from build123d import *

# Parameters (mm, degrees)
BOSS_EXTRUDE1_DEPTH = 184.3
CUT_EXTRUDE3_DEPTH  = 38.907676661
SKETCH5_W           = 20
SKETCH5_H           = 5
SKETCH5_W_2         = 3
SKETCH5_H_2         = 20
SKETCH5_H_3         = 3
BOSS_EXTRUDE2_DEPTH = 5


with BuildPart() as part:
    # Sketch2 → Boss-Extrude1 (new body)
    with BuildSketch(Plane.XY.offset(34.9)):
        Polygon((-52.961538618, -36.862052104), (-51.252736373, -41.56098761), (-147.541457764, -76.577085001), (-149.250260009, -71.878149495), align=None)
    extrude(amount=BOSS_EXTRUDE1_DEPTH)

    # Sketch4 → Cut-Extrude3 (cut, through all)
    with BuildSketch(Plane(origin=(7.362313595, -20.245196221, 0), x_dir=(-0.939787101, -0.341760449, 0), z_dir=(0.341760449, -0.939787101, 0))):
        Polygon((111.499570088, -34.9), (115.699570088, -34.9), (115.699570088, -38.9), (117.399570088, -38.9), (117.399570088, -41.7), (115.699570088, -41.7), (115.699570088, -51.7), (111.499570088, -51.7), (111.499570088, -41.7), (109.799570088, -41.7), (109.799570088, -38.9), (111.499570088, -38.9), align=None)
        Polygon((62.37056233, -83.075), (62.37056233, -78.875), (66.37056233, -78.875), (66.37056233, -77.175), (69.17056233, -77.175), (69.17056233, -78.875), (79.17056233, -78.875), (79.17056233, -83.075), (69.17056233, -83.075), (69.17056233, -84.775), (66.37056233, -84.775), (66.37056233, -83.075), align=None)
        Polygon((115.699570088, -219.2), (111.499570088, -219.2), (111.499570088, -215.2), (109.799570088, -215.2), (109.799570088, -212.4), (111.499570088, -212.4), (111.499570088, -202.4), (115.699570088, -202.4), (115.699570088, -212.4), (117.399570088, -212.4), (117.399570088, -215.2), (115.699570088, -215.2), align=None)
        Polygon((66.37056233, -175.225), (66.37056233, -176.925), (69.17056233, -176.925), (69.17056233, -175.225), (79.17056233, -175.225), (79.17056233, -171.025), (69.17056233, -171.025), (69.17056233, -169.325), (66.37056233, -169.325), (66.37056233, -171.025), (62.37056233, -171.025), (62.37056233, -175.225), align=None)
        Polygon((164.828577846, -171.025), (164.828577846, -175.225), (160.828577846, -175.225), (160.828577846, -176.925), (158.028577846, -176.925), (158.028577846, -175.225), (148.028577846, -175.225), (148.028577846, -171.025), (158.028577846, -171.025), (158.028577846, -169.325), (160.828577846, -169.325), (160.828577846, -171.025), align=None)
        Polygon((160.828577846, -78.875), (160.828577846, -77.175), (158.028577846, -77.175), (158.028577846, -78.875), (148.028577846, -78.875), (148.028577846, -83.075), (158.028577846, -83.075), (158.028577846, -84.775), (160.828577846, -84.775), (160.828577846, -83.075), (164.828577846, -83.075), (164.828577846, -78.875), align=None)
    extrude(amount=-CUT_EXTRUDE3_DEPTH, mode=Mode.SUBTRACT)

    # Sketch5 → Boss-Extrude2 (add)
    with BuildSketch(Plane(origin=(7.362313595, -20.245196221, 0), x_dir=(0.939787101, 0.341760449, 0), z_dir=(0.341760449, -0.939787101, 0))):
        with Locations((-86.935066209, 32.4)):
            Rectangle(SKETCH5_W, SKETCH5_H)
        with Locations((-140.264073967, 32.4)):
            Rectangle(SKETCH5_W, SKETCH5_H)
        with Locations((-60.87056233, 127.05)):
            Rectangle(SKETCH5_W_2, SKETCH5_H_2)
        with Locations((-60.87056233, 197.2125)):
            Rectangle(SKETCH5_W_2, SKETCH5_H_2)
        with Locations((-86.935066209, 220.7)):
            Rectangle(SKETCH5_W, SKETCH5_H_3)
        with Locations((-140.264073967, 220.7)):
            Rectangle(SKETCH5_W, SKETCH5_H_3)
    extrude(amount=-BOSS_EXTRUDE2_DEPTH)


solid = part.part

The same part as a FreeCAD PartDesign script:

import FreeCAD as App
import Part
import Sketcher

V = App.Vector


def add_polygon(sketch, points):
    """Adds a closed chain of lines whose ends are joined by coincident constraints."""
    first, n = sketch.GeometryCount, len(points)
    for a, b in zip(points, points[1:] + points[:1]):
        sketch.addGeometry(Part.LineSegment(App.Vector(*a, 0), App.Vector(*b, 0)), False)
    for i in range(n):
        sketch.addConstraint(Sketcher.Constraint("Coincident", first + i, 2, first + (i + 1) % n, 1))

doc = App.newDocument("Part")
params = doc.addObject("Spreadsheet::Sheet", "Params")
for row, (alias, value) in enumerate([
    ("sketch1_length", "5 mm"),
    ("pad1_length", "184.3 mm"),
    ("sketch2_width", "4 mm"),
    ("sketch2_width2", "10 mm"),
    ("sketch2_width3", "4.2 mm"),
    ("sketch2_width4", "1.7 mm"),
    ("sketch2_width5", "2.8 mm"),
    ("sketch3_width", "20 mm"),
    ("sketch3_width2", "3 mm"),
    ("sketch3_height", "5 mm"),
    ("pad2_length", "5 mm"),
], start=1):
    params.set(f"A{row}", alias)
    params.set(f"B{row}", "=" + value)
    params.setAlias(f"B{row}", alias)

body = doc.addObject("PartDesign::Body", "Body")

sketch1 = body.newObject("Sketcher::SketchObject", "Sketch")
sketch1.AttachmentSupport = (doc.getObject("XY_Plane"), [""])
sketch1.MapMode = "FlatFace"
sketch1.AttachmentOffset = App.Placement(V(0, 0, 34.9), App.Rotation())
add_polygon(sketch1, [(-51.252736, -41.560988), (-52.961539, -36.862052), (-149.25026, -71.878149), (-147.541458, -76.577085)])
sketch1.addConstraint(Sketcher.Constraint("Perpendicular", 0, 1))
sketch1.addConstraint(Sketcher.Constraint("Perpendicular", 1, 2))
sketch1.addConstraint(Sketcher.Constraint("Perpendicular", 2, 3))
sketch1.addConstraint(Sketcher.Constraint("Distance", 0, 5.0))
sketch1.addConstraint(Sketcher.Constraint("DistanceX", 0, 2, -1, 1, 52.961539))
sketch1.addConstraint(Sketcher.Constraint("DistanceX", 1, 2, -1, 1, 149.25026))
sketch1.addConstraint(Sketcher.Constraint("DistanceY", 1, 2, -1, 1, 71.878149))
sketch1.addConstraint(Sketcher.Constraint("DistanceX", 2, 2, 0, 2, 94.579919))
sketch1.setExpression("Constraints[7]", "Params.sketch1_length")
pad1 = body.newObject("PartDesign::Pad", "Pad")
pad1.Profile = sketch1
pad1.setExpression("Length", "Params.pad1_length")

sketch2 = body.newObject("Sketcher::SketchObject", "Sketch001")
sketch2.Placement = App.Placement(V(7.362314, -20.245196, 0), App.Rotation(V(-0.939787101, -0.341760449, 0), V(0, 0, -1), V(0.341760449, -0.939787101, 0), "ZXY"))
add_polygon(sketch2, [(115.69957, -34.9), (111.49957, -34.9), (111.49957, -38.9), (109.79957, -38.9), (109.79957, -41.7), (111.49957, -41.7), (111.49957, -51.7), (115.69957, -51.7), (115.69957, -41.7), (117.39957, -41.7), (117.39957, -38.9), (115.69957, -38.9)])
add_polygon(sketch2, [(62.370562, -78.875), (62.370562, -83.075), (66.370562, -83.075), (66.370562, -84.775), (69.170562, -84.775), (69.170562, -83.075), (79.170562, -83.075), (79.170562, -78.875), (69.170562, -78.875), (69.170562, -77.175), (66.370562, -77.175), (66.370562, -78.875)])
add_polygon(sketch2, [(111.49957, -219.2), (115.69957, -219.2), (115.69957, -215.2), (117.39957, -215.2), (117.39957, -212.4), (115.69957, -212.4), (115.69957, -202.4), (111.49957, -202.4), (111.49957, -212.4), (109.79957, -212.4), (109.79957, -215.2), (111.49957, -215.2)])
add_polygon(sketch2, [(66.370562, -175.225), (66.370562, -176.925), (69.170562, -176.925), (69.170562, -175.225), (79.170562, -175.225), (79.170562, -171.025), (69.170562, -171.025), (69.170562, -169.325), (66.370562, -169.325), (66.370562, -171.025), (62.370562, -171.025), (62.370562, -175.225)])
add_polygon(sketch2, [(164.828578, -175.225), (164.828578, -171.025), (160.828578, -171.025), (160.828578, -169.325), (158.028578, -169.325), (158.028578, -171.025), (148.028578, -171.025), (148.028578, -175.225), (158.028578, -175.225), (158.028578, -176.925), (160.828578, -176.925), (160.828578, -175.225)])
add_polygon(sketch2, [(160.828578, -78.875), (160.828578, -77.175), (158.028578, -77.175), (158.028578, -78.875), (148.028578, -78.875), (148.028578, -83.075), (158.028578, -83.075), (158.028578, -84.775), (160.828578, -84.775), (160.828578, -83.075), (164.828578, -83.075), (164.828578, -78.875)])
sketch2.addConstraint(Sketcher.Constraint("Horizontal", 0))
sketch2.addConstraint(Sketcher.Constraint("Vertical", 1))
sketch2.addConstraint(Sketcher.Constraint("Horizontal", 2))
sketch2.addConstraint(Sketcher.Constraint("Vertical", 3))
sketch2.addConstraint(Sketcher.Constraint("Horizontal", 4))
sketch2.addConstraint(Sketcher.Constraint("Vertical", 5))
sketch2.addConstraint(Sketcher.Constraint("Horizontal", 6))
sketch2.addConstraint(Sketcher.Constraint("Vertical", 7))
sketch2.addConstraint(Sketcher.Constraint("Horizontal", 8))
sketch2.addConstraint(Sketcher.Constraint("Vertical", 9))
sketch2.addConstraint(Sketcher.Constraint("Horizontal", 10))
sketch2.addConstraint(Sketcher.Constraint("Vertical", 11))
sketch2.addConstraint(Sketcher.Constraint("Vertical", 12))
sketch2.addConstraint(Sketcher.Constraint("Horizontal", 13))
sketch2.addConstraint(Sketcher.Constraint("Vertical", 14))
sketch2.addConstraint(Sketcher.Constraint("Horizontal", 15))
sketch2.addConstraint(Sketcher.Constraint("Vertical", 16))
sketch2.addConstraint(Sketcher.Constraint("Horizontal", 17))
sketch2.addConstraint(Sketcher.Constraint("Vertical", 18))
sketch2.addConstraint(Sketcher.Constraint("Horizontal", 19))
sketch2.addConstraint(Sketcher.Constraint("Vertical", 20))
sketch2.addConstraint(Sketcher.Constraint("Horizontal", 21))
sketch2.addConstraint(Sketcher.Constraint("Vertical", 22))
sketch2.addConstraint(Sketcher.Constraint("Horizontal", 23))
sketch2.addConstraint(Sketcher.Constraint("Horizontal", 24))
sketch2.addConstraint(Sketcher.Constraint("Vertical", 25))
sketch2.addConstraint(Sketcher.Constraint("Horizontal", 26))
sketch2.addConstraint(Sketcher.Constraint("Vertical", 27))
sketch2.addConstraint(Sketcher.Constraint("Horizontal", 28))
sketch2.addConstraint(Sketcher.Constraint("Vertical", 29))
sketch2.addConstraint(Sketcher.Constraint("Horizontal", 30))
sketch2.addConstraint(Sketcher.Constraint("Vertical", 31))
sketch2.addConstraint(Sketcher.Constraint("Horizontal", 32))
sketch2.addConstraint(Sketcher.Constraint("Vertical", 33))
sketch2.addConstraint(Sketcher.Constraint("Horizontal", 34))
sketch2.addConstraint(Sketcher.Constraint("Vertical", 35))
sketch2.addConstraint(Sketcher.Constraint("Vertical", 36))
sketch2.addConstraint(Sketcher.Constraint("Horizontal", 37))
sketch2.addConstraint(Sketcher.Constraint("Vertical", 38))
sketch2.addConstraint(Sketcher.Constraint("Horizontal", 39))
sketch2.addConstraint(Sketcher.Constraint("Vertical", 40))
sketch2.addConstraint(Sketcher.Constraint("Horizontal", 41))
sketch2.addConstraint(Sketcher.Constraint("Vertical", 42))
sketch2.addConstraint(Sketcher.Constraint("Horizontal", 43))
sketch2.addConstraint(Sketcher.Constraint("Vertical", 44))
sketch2.addConstraint(Sketcher.Constraint("Horizontal", 45))
sketch2.addConstraint(Sketcher.Constraint("Vertical", 46))
sketch2.addConstraint(Sketcher.Constraint("Horizontal", 47))
sketch2.addConstraint(Sketcher.Constraint("Vertical", 48))
sketch2.addConstraint(Sketcher.Constraint("Horizontal", 49))
sketch2.addConstraint(Sketcher.Constraint("Vertical", 50))
sketch2.addConstraint(Sketcher.Constraint("Horizontal", 51))
sketch2.addConstraint(Sketcher.Constraint("Vertical", 52))
sketch2.addConstraint(Sketcher.Constraint("Horizontal", 53))
sketch2.addConstraint(Sketcher.Constraint("Vertical", 54))
sketch2.addConstraint(Sketcher.Constraint("Horizontal", 55))
sketch2.addConstraint(Sketcher.Constraint("Vertical", 56))
sketch2.addConstraint(Sketcher.Constraint("Horizontal", 57))
sketch2.addConstraint(Sketcher.Constraint("Vertical", 58))
sketch2.addConstraint(Sketcher.Constraint("Horizontal", 59))
sketch2.addConstraint(Sketcher.Constraint("Vertical", 60))
sketch2.addConstraint(Sketcher.Constraint("Horizontal", 61))
sketch2.addConstraint(Sketcher.Constraint("Vertical", 62))
sketch2.addConstraint(Sketcher.Constraint("Horizontal", 63))
sketch2.addConstraint(Sketcher.Constraint("Vertical", 64))
sketch2.addConstraint(Sketcher.Constraint("Horizontal", 65))
sketch2.addConstraint(Sketcher.Constraint("Vertical", 66))
sketch2.addConstraint(Sketcher.Constraint("Horizontal", 67))
sketch2.addConstraint(Sketcher.Constraint("Vertical", 68))
sketch2.addConstraint(Sketcher.Constraint("Horizontal", 69))
sketch2.addConstraint(Sketcher.Constraint("Vertical", 70))
sketch2.addConstraint(Sketcher.Constraint("Horizontal", 71))
sketch2.addConstraint(Sketcher.Constraint("Horizontal", 4, 2, 7, 2))
sketch2.addConstraint(Sketcher.Constraint("Horizontal", 2, 2, 9, 2))
sketch2.addConstraint(Sketcher.Constraint("Horizontal", 13, 2, 16, 2))
sketch2.addConstraint(Sketcher.Constraint("Horizontal", 19, 2, 22, 2))
sketch2.addConstraint(Sketcher.Constraint("Horizontal", 28, 2, 31, 2))
sketch2.addConstraint(Sketcher.Constraint("Horizontal", 26, 2, 33, 2))
sketch2.addConstraint(Sketcher.Constraint("Horizontal", 41, 2, 44, 2))
sketch2.addConstraint(Sketcher.Constraint("Horizontal", 39, 2, 46, 2))
sketch2.addConstraint(Sketcher.Constraint("Horizontal", 45, 2, 48, 2))
sketch2.addConstraint(Sketcher.Constraint("Horizontal", 43, 2, 50, 2))
sketch2.addConstraint(Sketcher.Constraint("Horizontal", 49, 2, 52, 2))
sketch2.addConstraint(Sketcher.Constraint("Horizontal", 47, 2, 54, 2))
sketch2.addConstraint(Sketcher.Constraint("Horizontal", 37, 2, 56, 2))
sketch2.addConstraint(Sketcher.Constraint("Horizontal", 55, 2, 58, 2))
sketch2.addConstraint(Sketcher.Constraint("Horizontal", 21, 2, 60, 2))
sketch2.addConstraint(Sketcher.Constraint("Horizontal", 23, 2, 62, 2))
sketch2.addConstraint(Sketcher.Constraint("Horizontal", 17, 2, 64, 2))
sketch2.addConstraint(Sketcher.Constraint("Horizontal", 15, 2, 66, 2))
sketch2.addConstraint(Sketcher.Constraint("Horizontal", 65, 2, 68, 2))
sketch2.addConstraint(Sketcher.Constraint("Horizontal", 63, 2, 70, 2))
sketch2.addConstraint(Sketcher.Constraint("Vertical", 1, 2, 4, 2))
sketch2.addConstraint(Sketcher.Constraint("Vertical", 7, 2, 10, 2))
sketch2.addConstraint(Sketcher.Constraint("Vertical", 16, 2, 19, 2))
sketch2.addConstraint(Sketcher.Constraint("Vertical", 14, 2, 21, 2))
sketch2.addConstraint(Sketcher.Constraint("Vertical", 11, 2, 24, 2))
sketch2.addConstraint(Sketcher.Constraint("Vertical", 9, 2, 26, 2))
sketch2.addConstraint(Sketcher.Constraint("Vertical", 25, 2, 28, 2))
sketch2.addConstraint(Sketcher.Constraint("Vertical", 5, 2, 30, 2))
sketch2.addConstraint(Sketcher.Constraint("Vertical", 3, 2, 32, 2))
sketch2.addConstraint(Sketcher.Constraint("Vertical", 31, 2, 34, 2))
sketch2.addConstraint(Sketcher.Constraint("Vertical", 22, 2, 36, 2))
sketch2.addConstraint(Sketcher.Constraint("Vertical", 20, 2, 37, 2))
sketch2.addConstraint(Sketcher.Constraint("Vertical", 18, 2, 39, 2))
sketch2.addConstraint(Sketcher.Constraint("Vertical", 38, 2, 41, 2))
sketch2.addConstraint(Sketcher.Constraint("Vertical", 36, 2, 43, 2))
sketch2.addConstraint(Sketcher.Constraint("Vertical", 23, 2, 45, 2))
sketch2.addConstraint(Sketcher.Constraint("Vertical", 52, 2, 55, 2))
sketch2.addConstraint(Sketcher.Constraint("Vertical", 50, 2, 57, 2))
sketch2.addConstraint(Sketcher.Constraint("Vertical", 58, 2, 60, 2))
sketch2.addConstraint(Sketcher.Constraint("Vertical", 56, 2, 61, 2))
sketch2.addConstraint(Sketcher.Constraint("Vertical", 54, 2, 63, 2))
sketch2.addConstraint(Sketcher.Constraint("Vertical", 62, 2, 65, 2))
sketch2.addConstraint(Sketcher.Constraint("Vertical", 60, 2, 67, 2))
sketch2.addConstraint(Sketcher.Constraint("Vertical", 59, 2, 69, 2))
sketch2.addConstraint(Sketcher.Constraint("Equal", 4, 8))
sketch2.addConstraint(Sketcher.Constraint("Equal", 47, 49))
sketch2.addConstraint(Sketcher.Constraint("Equal", 43, 51))
sketch2.addConstraint(Sketcher.Constraint("Equal", 41, 53))
sketch2.addConstraint(Sketcher.Constraint("Equal", 71, 1))
sketch2.addConstraint(Sketcher.Constraint("Equal", 67, 3))
sketch2.addConstraint(Sketcher.Constraint("Equal", 65, 5))
sketch2.addConstraint(Sketcher.Constraint("Equal", 30, 12))
sketch2.addConstraint(Sketcher.Constraint("Equal", 34, 14))
sketch2.addConstraint(Sketcher.Constraint("Equal", 16, 20))
sketch2.addConstraint(Sketcher.Constraint("Equal", 11, 25))
sketch2.addConstraint(Sketcher.Constraint("Equal", 9, 27))
sketch2.addConstraint(Sketcher.Constraint("Equal", 7, 29))
sketch2.addConstraint(Sketcher.Constraint("Equal", 22, 36))
sketch2.addConstraint(Sketcher.Constraint("Equal", 18, 40))
sketch2.addConstraint(Sketcher.Constraint("Equal", 38, 42))
sketch2.addConstraint(Sketcher.Constraint("DistanceX", 13, 1, 13, 2, 4.0))
sketch2.addConstraint(Sketcher.Constraint("DistanceX", 17, 1, 17, 2, 10.0))
sketch2.addConstraint(Sketcher.Constraint("DistanceX", 0, 2, 0, 1, 4.2))
sketch2.addConstraint(Sketcher.Constraint("DistanceX", 2, 2, 2, 1, 1.7))
sketch2.addConstraint(Sketcher.Constraint("DistanceX", 15, 1, 15, 2, 2.8))
sketch2.addConstraint(Sketcher.Constraint("DistanceY", 0, 2, -1, 1, 34.9))
sketch2.addConstraint(Sketcher.Constraint("DistanceY", 24, 2, -1, 1, 219.2))
sketch2.addConstraint(Sketcher.Constraint("DistanceY", 12, 2, -1, 1, 83.075))
sketch2.addConstraint(Sketcher.Constraint("DistanceY", 36, 2, -1, 1, 176.925))
sketch2.addConstraint(Sketcher.Constraint("DistanceX", -1, 1, 0, 2, 111.49957))
sketch2.addConstraint(Sketcher.Constraint("DistanceX", -1, 1, 12, 2, 62.370562))
sketch2.addConstraint(Sketcher.Constraint("DistanceX", -1, 1, 48, 2, 164.828578))
sketch2.setExpression("Constraints[204]", "Params.sketch2_width")
sketch2.setExpression("Constraints[205]", "Params.sketch2_width2")
sketch2.setExpression("Constraints[206]", "Params.sketch2_width3")
sketch2.setExpression("Constraints[207]", "Params.sketch2_width4")
sketch2.setExpression("Constraints[208]", "Params.sketch2_width5")
pocket1 = body.newObject("PartDesign::Pocket", "Pocket")
pocket1.Profile = sketch2
pocket1.Type = "ThroughAll"

sketch3 = body.newObject("Sketcher::SketchObject", "Sketch002")
sketch3.Placement = App.Placement(V(7.362314, -20.245196, 0), App.Rotation(V(0.939787101, 0.341760449, 0), V(0, 0, 1), V(0.341760449, -0.939787101, 0), "ZXY"))
add_polygon(sketch3, [(-96.935066, 34.9), (-96.935066, 29.9), (-76.935066, 29.9), (-76.935066, 34.9)])
add_polygon(sketch3, [(-150.264074, 34.9), (-150.264074, 29.9), (-130.264074, 29.9), (-130.264074, 34.9)])
add_polygon(sketch3, [(-62.370562, 137.05), (-62.370562, 117.05), (-59.370562, 117.05), (-59.370562, 137.05)])
add_polygon(sketch3, [(-62.370562, 207.2125), (-62.370562, 187.2125), (-59.370562, 187.2125), (-59.370562, 207.2125)])
add_polygon(sketch3, [(-96.935066, 222.2), (-96.935066, 219.2), (-76.935066, 219.2), (-76.935066, 222.2)])
add_polygon(sketch3, [(-150.264074, 222.2), (-150.264074, 219.2), (-130.264074, 219.2), (-130.264074, 222.2)])
sketch3.addConstraint(Sketcher.Constraint("Vertical", 0))
sketch3.addConstraint(Sketcher.Constraint("Horizontal", 1))
sketch3.addConstraint(Sketcher.Constraint("Vertical", 2))
sketch3.addConstraint(Sketcher.Constraint("Horizontal", 3))
sketch3.addConstraint(Sketcher.Constraint("Vertical", 4))
sketch3.addConstraint(Sketcher.Constraint("Horizontal", 5))
sketch3.addConstraint(Sketcher.Constraint("Vertical", 6))
sketch3.addConstraint(Sketcher.Constraint("Horizontal", 7))
sketch3.addConstraint(Sketcher.Constraint("Vertical", 8))
sketch3.addConstraint(Sketcher.Constraint("Horizontal", 9))
sketch3.addConstraint(Sketcher.Constraint("Vertical", 10))
sketch3.addConstraint(Sketcher.Constraint("Horizontal", 11))
sketch3.addConstraint(Sketcher.Constraint("Vertical", 12))
sketch3.addConstraint(Sketcher.Constraint("Horizontal", 13))
sketch3.addConstraint(Sketcher.Constraint("Vertical", 14))
sketch3.addConstraint(Sketcher.Constraint("Horizontal", 15))
sketch3.addConstraint(Sketcher.Constraint("Vertical", 16))
sketch3.addConstraint(Sketcher.Constraint("Horizontal", 17))
sketch3.addConstraint(Sketcher.Constraint("Vertical", 18))
sketch3.addConstraint(Sketcher.Constraint("Horizontal", 19))
sketch3.addConstraint(Sketcher.Constraint("Vertical", 20))
sketch3.addConstraint(Sketcher.Constraint("Horizontal", 21))
sketch3.addConstraint(Sketcher.Constraint("Vertical", 22))
sketch3.addConstraint(Sketcher.Constraint("Horizontal", 23))
sketch3.addConstraint(Sketcher.Constraint("Horizontal", 1, 2, 4, 2))
sketch3.addConstraint(Sketcher.Constraint("Horizontal", 3, 2, 6, 2))
sketch3.addConstraint(Sketcher.Constraint("Horizontal", 17, 2, 20, 2))
sketch3.addConstraint(Sketcher.Constraint("Horizontal", 19, 2, 22, 2))
sketch3.addConstraint(Sketcher.Constraint("Vertical", 11, 2, 12, 2))
sketch3.addConstraint(Sketcher.Constraint("Vertical", 10, 2, 13, 2))
sketch3.addConstraint(Sketcher.Constraint("Vertical", 3, 2, 16, 2))
sketch3.addConstraint(Sketcher.Constraint("Vertical", 2, 2, 17, 2))
sketch3.addConstraint(Sketcher.Constraint("Vertical", 7, 2, 20, 2))
sketch3.addConstraint(Sketcher.Constraint("Vertical", 6, 2, 21, 2))
sketch3.addConstraint(Sketcher.Constraint("Equal", 3, 5))
sketch3.addConstraint(Sketcher.Constraint("Equal", 23, 8))
sketch3.addConstraint(Sketcher.Constraint("Equal", 10, 12))
sketch3.addConstraint(Sketcher.Constraint("Equal", 15, 16))
sketch3.addConstraint(Sketcher.Constraint("DistanceX", 1, 1, 1, 2, 20.0))
sketch3.addConstraint(Sketcher.Constraint("DistanceX", 9, 1, 9, 2, 3.0))
sketch3.addConstraint(Sketcher.Constraint("DistanceY", 0, 2, 0, 1, 5.0))
sketch3.addConstraint(Sketcher.Constraint("DistanceY", -1, 1, 0, 2, 29.9))
sketch3.addConstraint(Sketcher.Constraint("DistanceY", -1, 1, 16, 2, 219.2))
sketch3.addConstraint(Sketcher.Constraint("DistanceY", -1, 1, 8, 2, 117.05))
sketch3.addConstraint(Sketcher.Constraint("DistanceY", -1, 1, 12, 2, 187.2125))
sketch3.addConstraint(Sketcher.Constraint("DistanceX", 6, 2, 8, 2, 67.893512))
sketch3.addConstraint(Sketcher.Constraint("DistanceX", 0, 2, -1, 1, 96.935066))
sketch3.addConstraint(Sketcher.Constraint("DistanceX", 4, 2, -1, 1, 150.264074))
sketch3.setExpression("Constraints[62]", "Params.sketch3_width")
sketch3.setExpression("Constraints[63]", "Params.sketch3_width2")
sketch3.setExpression("Constraints[64]", "Params.sketch3_height")
pad2 = body.newObject("PartDesign::Pad", "Pad001")
pad2.Profile = sketch3
pad2.setExpression("Length", "Params.pad2_length")
pad2.Reversed = True

doc.recompute()
